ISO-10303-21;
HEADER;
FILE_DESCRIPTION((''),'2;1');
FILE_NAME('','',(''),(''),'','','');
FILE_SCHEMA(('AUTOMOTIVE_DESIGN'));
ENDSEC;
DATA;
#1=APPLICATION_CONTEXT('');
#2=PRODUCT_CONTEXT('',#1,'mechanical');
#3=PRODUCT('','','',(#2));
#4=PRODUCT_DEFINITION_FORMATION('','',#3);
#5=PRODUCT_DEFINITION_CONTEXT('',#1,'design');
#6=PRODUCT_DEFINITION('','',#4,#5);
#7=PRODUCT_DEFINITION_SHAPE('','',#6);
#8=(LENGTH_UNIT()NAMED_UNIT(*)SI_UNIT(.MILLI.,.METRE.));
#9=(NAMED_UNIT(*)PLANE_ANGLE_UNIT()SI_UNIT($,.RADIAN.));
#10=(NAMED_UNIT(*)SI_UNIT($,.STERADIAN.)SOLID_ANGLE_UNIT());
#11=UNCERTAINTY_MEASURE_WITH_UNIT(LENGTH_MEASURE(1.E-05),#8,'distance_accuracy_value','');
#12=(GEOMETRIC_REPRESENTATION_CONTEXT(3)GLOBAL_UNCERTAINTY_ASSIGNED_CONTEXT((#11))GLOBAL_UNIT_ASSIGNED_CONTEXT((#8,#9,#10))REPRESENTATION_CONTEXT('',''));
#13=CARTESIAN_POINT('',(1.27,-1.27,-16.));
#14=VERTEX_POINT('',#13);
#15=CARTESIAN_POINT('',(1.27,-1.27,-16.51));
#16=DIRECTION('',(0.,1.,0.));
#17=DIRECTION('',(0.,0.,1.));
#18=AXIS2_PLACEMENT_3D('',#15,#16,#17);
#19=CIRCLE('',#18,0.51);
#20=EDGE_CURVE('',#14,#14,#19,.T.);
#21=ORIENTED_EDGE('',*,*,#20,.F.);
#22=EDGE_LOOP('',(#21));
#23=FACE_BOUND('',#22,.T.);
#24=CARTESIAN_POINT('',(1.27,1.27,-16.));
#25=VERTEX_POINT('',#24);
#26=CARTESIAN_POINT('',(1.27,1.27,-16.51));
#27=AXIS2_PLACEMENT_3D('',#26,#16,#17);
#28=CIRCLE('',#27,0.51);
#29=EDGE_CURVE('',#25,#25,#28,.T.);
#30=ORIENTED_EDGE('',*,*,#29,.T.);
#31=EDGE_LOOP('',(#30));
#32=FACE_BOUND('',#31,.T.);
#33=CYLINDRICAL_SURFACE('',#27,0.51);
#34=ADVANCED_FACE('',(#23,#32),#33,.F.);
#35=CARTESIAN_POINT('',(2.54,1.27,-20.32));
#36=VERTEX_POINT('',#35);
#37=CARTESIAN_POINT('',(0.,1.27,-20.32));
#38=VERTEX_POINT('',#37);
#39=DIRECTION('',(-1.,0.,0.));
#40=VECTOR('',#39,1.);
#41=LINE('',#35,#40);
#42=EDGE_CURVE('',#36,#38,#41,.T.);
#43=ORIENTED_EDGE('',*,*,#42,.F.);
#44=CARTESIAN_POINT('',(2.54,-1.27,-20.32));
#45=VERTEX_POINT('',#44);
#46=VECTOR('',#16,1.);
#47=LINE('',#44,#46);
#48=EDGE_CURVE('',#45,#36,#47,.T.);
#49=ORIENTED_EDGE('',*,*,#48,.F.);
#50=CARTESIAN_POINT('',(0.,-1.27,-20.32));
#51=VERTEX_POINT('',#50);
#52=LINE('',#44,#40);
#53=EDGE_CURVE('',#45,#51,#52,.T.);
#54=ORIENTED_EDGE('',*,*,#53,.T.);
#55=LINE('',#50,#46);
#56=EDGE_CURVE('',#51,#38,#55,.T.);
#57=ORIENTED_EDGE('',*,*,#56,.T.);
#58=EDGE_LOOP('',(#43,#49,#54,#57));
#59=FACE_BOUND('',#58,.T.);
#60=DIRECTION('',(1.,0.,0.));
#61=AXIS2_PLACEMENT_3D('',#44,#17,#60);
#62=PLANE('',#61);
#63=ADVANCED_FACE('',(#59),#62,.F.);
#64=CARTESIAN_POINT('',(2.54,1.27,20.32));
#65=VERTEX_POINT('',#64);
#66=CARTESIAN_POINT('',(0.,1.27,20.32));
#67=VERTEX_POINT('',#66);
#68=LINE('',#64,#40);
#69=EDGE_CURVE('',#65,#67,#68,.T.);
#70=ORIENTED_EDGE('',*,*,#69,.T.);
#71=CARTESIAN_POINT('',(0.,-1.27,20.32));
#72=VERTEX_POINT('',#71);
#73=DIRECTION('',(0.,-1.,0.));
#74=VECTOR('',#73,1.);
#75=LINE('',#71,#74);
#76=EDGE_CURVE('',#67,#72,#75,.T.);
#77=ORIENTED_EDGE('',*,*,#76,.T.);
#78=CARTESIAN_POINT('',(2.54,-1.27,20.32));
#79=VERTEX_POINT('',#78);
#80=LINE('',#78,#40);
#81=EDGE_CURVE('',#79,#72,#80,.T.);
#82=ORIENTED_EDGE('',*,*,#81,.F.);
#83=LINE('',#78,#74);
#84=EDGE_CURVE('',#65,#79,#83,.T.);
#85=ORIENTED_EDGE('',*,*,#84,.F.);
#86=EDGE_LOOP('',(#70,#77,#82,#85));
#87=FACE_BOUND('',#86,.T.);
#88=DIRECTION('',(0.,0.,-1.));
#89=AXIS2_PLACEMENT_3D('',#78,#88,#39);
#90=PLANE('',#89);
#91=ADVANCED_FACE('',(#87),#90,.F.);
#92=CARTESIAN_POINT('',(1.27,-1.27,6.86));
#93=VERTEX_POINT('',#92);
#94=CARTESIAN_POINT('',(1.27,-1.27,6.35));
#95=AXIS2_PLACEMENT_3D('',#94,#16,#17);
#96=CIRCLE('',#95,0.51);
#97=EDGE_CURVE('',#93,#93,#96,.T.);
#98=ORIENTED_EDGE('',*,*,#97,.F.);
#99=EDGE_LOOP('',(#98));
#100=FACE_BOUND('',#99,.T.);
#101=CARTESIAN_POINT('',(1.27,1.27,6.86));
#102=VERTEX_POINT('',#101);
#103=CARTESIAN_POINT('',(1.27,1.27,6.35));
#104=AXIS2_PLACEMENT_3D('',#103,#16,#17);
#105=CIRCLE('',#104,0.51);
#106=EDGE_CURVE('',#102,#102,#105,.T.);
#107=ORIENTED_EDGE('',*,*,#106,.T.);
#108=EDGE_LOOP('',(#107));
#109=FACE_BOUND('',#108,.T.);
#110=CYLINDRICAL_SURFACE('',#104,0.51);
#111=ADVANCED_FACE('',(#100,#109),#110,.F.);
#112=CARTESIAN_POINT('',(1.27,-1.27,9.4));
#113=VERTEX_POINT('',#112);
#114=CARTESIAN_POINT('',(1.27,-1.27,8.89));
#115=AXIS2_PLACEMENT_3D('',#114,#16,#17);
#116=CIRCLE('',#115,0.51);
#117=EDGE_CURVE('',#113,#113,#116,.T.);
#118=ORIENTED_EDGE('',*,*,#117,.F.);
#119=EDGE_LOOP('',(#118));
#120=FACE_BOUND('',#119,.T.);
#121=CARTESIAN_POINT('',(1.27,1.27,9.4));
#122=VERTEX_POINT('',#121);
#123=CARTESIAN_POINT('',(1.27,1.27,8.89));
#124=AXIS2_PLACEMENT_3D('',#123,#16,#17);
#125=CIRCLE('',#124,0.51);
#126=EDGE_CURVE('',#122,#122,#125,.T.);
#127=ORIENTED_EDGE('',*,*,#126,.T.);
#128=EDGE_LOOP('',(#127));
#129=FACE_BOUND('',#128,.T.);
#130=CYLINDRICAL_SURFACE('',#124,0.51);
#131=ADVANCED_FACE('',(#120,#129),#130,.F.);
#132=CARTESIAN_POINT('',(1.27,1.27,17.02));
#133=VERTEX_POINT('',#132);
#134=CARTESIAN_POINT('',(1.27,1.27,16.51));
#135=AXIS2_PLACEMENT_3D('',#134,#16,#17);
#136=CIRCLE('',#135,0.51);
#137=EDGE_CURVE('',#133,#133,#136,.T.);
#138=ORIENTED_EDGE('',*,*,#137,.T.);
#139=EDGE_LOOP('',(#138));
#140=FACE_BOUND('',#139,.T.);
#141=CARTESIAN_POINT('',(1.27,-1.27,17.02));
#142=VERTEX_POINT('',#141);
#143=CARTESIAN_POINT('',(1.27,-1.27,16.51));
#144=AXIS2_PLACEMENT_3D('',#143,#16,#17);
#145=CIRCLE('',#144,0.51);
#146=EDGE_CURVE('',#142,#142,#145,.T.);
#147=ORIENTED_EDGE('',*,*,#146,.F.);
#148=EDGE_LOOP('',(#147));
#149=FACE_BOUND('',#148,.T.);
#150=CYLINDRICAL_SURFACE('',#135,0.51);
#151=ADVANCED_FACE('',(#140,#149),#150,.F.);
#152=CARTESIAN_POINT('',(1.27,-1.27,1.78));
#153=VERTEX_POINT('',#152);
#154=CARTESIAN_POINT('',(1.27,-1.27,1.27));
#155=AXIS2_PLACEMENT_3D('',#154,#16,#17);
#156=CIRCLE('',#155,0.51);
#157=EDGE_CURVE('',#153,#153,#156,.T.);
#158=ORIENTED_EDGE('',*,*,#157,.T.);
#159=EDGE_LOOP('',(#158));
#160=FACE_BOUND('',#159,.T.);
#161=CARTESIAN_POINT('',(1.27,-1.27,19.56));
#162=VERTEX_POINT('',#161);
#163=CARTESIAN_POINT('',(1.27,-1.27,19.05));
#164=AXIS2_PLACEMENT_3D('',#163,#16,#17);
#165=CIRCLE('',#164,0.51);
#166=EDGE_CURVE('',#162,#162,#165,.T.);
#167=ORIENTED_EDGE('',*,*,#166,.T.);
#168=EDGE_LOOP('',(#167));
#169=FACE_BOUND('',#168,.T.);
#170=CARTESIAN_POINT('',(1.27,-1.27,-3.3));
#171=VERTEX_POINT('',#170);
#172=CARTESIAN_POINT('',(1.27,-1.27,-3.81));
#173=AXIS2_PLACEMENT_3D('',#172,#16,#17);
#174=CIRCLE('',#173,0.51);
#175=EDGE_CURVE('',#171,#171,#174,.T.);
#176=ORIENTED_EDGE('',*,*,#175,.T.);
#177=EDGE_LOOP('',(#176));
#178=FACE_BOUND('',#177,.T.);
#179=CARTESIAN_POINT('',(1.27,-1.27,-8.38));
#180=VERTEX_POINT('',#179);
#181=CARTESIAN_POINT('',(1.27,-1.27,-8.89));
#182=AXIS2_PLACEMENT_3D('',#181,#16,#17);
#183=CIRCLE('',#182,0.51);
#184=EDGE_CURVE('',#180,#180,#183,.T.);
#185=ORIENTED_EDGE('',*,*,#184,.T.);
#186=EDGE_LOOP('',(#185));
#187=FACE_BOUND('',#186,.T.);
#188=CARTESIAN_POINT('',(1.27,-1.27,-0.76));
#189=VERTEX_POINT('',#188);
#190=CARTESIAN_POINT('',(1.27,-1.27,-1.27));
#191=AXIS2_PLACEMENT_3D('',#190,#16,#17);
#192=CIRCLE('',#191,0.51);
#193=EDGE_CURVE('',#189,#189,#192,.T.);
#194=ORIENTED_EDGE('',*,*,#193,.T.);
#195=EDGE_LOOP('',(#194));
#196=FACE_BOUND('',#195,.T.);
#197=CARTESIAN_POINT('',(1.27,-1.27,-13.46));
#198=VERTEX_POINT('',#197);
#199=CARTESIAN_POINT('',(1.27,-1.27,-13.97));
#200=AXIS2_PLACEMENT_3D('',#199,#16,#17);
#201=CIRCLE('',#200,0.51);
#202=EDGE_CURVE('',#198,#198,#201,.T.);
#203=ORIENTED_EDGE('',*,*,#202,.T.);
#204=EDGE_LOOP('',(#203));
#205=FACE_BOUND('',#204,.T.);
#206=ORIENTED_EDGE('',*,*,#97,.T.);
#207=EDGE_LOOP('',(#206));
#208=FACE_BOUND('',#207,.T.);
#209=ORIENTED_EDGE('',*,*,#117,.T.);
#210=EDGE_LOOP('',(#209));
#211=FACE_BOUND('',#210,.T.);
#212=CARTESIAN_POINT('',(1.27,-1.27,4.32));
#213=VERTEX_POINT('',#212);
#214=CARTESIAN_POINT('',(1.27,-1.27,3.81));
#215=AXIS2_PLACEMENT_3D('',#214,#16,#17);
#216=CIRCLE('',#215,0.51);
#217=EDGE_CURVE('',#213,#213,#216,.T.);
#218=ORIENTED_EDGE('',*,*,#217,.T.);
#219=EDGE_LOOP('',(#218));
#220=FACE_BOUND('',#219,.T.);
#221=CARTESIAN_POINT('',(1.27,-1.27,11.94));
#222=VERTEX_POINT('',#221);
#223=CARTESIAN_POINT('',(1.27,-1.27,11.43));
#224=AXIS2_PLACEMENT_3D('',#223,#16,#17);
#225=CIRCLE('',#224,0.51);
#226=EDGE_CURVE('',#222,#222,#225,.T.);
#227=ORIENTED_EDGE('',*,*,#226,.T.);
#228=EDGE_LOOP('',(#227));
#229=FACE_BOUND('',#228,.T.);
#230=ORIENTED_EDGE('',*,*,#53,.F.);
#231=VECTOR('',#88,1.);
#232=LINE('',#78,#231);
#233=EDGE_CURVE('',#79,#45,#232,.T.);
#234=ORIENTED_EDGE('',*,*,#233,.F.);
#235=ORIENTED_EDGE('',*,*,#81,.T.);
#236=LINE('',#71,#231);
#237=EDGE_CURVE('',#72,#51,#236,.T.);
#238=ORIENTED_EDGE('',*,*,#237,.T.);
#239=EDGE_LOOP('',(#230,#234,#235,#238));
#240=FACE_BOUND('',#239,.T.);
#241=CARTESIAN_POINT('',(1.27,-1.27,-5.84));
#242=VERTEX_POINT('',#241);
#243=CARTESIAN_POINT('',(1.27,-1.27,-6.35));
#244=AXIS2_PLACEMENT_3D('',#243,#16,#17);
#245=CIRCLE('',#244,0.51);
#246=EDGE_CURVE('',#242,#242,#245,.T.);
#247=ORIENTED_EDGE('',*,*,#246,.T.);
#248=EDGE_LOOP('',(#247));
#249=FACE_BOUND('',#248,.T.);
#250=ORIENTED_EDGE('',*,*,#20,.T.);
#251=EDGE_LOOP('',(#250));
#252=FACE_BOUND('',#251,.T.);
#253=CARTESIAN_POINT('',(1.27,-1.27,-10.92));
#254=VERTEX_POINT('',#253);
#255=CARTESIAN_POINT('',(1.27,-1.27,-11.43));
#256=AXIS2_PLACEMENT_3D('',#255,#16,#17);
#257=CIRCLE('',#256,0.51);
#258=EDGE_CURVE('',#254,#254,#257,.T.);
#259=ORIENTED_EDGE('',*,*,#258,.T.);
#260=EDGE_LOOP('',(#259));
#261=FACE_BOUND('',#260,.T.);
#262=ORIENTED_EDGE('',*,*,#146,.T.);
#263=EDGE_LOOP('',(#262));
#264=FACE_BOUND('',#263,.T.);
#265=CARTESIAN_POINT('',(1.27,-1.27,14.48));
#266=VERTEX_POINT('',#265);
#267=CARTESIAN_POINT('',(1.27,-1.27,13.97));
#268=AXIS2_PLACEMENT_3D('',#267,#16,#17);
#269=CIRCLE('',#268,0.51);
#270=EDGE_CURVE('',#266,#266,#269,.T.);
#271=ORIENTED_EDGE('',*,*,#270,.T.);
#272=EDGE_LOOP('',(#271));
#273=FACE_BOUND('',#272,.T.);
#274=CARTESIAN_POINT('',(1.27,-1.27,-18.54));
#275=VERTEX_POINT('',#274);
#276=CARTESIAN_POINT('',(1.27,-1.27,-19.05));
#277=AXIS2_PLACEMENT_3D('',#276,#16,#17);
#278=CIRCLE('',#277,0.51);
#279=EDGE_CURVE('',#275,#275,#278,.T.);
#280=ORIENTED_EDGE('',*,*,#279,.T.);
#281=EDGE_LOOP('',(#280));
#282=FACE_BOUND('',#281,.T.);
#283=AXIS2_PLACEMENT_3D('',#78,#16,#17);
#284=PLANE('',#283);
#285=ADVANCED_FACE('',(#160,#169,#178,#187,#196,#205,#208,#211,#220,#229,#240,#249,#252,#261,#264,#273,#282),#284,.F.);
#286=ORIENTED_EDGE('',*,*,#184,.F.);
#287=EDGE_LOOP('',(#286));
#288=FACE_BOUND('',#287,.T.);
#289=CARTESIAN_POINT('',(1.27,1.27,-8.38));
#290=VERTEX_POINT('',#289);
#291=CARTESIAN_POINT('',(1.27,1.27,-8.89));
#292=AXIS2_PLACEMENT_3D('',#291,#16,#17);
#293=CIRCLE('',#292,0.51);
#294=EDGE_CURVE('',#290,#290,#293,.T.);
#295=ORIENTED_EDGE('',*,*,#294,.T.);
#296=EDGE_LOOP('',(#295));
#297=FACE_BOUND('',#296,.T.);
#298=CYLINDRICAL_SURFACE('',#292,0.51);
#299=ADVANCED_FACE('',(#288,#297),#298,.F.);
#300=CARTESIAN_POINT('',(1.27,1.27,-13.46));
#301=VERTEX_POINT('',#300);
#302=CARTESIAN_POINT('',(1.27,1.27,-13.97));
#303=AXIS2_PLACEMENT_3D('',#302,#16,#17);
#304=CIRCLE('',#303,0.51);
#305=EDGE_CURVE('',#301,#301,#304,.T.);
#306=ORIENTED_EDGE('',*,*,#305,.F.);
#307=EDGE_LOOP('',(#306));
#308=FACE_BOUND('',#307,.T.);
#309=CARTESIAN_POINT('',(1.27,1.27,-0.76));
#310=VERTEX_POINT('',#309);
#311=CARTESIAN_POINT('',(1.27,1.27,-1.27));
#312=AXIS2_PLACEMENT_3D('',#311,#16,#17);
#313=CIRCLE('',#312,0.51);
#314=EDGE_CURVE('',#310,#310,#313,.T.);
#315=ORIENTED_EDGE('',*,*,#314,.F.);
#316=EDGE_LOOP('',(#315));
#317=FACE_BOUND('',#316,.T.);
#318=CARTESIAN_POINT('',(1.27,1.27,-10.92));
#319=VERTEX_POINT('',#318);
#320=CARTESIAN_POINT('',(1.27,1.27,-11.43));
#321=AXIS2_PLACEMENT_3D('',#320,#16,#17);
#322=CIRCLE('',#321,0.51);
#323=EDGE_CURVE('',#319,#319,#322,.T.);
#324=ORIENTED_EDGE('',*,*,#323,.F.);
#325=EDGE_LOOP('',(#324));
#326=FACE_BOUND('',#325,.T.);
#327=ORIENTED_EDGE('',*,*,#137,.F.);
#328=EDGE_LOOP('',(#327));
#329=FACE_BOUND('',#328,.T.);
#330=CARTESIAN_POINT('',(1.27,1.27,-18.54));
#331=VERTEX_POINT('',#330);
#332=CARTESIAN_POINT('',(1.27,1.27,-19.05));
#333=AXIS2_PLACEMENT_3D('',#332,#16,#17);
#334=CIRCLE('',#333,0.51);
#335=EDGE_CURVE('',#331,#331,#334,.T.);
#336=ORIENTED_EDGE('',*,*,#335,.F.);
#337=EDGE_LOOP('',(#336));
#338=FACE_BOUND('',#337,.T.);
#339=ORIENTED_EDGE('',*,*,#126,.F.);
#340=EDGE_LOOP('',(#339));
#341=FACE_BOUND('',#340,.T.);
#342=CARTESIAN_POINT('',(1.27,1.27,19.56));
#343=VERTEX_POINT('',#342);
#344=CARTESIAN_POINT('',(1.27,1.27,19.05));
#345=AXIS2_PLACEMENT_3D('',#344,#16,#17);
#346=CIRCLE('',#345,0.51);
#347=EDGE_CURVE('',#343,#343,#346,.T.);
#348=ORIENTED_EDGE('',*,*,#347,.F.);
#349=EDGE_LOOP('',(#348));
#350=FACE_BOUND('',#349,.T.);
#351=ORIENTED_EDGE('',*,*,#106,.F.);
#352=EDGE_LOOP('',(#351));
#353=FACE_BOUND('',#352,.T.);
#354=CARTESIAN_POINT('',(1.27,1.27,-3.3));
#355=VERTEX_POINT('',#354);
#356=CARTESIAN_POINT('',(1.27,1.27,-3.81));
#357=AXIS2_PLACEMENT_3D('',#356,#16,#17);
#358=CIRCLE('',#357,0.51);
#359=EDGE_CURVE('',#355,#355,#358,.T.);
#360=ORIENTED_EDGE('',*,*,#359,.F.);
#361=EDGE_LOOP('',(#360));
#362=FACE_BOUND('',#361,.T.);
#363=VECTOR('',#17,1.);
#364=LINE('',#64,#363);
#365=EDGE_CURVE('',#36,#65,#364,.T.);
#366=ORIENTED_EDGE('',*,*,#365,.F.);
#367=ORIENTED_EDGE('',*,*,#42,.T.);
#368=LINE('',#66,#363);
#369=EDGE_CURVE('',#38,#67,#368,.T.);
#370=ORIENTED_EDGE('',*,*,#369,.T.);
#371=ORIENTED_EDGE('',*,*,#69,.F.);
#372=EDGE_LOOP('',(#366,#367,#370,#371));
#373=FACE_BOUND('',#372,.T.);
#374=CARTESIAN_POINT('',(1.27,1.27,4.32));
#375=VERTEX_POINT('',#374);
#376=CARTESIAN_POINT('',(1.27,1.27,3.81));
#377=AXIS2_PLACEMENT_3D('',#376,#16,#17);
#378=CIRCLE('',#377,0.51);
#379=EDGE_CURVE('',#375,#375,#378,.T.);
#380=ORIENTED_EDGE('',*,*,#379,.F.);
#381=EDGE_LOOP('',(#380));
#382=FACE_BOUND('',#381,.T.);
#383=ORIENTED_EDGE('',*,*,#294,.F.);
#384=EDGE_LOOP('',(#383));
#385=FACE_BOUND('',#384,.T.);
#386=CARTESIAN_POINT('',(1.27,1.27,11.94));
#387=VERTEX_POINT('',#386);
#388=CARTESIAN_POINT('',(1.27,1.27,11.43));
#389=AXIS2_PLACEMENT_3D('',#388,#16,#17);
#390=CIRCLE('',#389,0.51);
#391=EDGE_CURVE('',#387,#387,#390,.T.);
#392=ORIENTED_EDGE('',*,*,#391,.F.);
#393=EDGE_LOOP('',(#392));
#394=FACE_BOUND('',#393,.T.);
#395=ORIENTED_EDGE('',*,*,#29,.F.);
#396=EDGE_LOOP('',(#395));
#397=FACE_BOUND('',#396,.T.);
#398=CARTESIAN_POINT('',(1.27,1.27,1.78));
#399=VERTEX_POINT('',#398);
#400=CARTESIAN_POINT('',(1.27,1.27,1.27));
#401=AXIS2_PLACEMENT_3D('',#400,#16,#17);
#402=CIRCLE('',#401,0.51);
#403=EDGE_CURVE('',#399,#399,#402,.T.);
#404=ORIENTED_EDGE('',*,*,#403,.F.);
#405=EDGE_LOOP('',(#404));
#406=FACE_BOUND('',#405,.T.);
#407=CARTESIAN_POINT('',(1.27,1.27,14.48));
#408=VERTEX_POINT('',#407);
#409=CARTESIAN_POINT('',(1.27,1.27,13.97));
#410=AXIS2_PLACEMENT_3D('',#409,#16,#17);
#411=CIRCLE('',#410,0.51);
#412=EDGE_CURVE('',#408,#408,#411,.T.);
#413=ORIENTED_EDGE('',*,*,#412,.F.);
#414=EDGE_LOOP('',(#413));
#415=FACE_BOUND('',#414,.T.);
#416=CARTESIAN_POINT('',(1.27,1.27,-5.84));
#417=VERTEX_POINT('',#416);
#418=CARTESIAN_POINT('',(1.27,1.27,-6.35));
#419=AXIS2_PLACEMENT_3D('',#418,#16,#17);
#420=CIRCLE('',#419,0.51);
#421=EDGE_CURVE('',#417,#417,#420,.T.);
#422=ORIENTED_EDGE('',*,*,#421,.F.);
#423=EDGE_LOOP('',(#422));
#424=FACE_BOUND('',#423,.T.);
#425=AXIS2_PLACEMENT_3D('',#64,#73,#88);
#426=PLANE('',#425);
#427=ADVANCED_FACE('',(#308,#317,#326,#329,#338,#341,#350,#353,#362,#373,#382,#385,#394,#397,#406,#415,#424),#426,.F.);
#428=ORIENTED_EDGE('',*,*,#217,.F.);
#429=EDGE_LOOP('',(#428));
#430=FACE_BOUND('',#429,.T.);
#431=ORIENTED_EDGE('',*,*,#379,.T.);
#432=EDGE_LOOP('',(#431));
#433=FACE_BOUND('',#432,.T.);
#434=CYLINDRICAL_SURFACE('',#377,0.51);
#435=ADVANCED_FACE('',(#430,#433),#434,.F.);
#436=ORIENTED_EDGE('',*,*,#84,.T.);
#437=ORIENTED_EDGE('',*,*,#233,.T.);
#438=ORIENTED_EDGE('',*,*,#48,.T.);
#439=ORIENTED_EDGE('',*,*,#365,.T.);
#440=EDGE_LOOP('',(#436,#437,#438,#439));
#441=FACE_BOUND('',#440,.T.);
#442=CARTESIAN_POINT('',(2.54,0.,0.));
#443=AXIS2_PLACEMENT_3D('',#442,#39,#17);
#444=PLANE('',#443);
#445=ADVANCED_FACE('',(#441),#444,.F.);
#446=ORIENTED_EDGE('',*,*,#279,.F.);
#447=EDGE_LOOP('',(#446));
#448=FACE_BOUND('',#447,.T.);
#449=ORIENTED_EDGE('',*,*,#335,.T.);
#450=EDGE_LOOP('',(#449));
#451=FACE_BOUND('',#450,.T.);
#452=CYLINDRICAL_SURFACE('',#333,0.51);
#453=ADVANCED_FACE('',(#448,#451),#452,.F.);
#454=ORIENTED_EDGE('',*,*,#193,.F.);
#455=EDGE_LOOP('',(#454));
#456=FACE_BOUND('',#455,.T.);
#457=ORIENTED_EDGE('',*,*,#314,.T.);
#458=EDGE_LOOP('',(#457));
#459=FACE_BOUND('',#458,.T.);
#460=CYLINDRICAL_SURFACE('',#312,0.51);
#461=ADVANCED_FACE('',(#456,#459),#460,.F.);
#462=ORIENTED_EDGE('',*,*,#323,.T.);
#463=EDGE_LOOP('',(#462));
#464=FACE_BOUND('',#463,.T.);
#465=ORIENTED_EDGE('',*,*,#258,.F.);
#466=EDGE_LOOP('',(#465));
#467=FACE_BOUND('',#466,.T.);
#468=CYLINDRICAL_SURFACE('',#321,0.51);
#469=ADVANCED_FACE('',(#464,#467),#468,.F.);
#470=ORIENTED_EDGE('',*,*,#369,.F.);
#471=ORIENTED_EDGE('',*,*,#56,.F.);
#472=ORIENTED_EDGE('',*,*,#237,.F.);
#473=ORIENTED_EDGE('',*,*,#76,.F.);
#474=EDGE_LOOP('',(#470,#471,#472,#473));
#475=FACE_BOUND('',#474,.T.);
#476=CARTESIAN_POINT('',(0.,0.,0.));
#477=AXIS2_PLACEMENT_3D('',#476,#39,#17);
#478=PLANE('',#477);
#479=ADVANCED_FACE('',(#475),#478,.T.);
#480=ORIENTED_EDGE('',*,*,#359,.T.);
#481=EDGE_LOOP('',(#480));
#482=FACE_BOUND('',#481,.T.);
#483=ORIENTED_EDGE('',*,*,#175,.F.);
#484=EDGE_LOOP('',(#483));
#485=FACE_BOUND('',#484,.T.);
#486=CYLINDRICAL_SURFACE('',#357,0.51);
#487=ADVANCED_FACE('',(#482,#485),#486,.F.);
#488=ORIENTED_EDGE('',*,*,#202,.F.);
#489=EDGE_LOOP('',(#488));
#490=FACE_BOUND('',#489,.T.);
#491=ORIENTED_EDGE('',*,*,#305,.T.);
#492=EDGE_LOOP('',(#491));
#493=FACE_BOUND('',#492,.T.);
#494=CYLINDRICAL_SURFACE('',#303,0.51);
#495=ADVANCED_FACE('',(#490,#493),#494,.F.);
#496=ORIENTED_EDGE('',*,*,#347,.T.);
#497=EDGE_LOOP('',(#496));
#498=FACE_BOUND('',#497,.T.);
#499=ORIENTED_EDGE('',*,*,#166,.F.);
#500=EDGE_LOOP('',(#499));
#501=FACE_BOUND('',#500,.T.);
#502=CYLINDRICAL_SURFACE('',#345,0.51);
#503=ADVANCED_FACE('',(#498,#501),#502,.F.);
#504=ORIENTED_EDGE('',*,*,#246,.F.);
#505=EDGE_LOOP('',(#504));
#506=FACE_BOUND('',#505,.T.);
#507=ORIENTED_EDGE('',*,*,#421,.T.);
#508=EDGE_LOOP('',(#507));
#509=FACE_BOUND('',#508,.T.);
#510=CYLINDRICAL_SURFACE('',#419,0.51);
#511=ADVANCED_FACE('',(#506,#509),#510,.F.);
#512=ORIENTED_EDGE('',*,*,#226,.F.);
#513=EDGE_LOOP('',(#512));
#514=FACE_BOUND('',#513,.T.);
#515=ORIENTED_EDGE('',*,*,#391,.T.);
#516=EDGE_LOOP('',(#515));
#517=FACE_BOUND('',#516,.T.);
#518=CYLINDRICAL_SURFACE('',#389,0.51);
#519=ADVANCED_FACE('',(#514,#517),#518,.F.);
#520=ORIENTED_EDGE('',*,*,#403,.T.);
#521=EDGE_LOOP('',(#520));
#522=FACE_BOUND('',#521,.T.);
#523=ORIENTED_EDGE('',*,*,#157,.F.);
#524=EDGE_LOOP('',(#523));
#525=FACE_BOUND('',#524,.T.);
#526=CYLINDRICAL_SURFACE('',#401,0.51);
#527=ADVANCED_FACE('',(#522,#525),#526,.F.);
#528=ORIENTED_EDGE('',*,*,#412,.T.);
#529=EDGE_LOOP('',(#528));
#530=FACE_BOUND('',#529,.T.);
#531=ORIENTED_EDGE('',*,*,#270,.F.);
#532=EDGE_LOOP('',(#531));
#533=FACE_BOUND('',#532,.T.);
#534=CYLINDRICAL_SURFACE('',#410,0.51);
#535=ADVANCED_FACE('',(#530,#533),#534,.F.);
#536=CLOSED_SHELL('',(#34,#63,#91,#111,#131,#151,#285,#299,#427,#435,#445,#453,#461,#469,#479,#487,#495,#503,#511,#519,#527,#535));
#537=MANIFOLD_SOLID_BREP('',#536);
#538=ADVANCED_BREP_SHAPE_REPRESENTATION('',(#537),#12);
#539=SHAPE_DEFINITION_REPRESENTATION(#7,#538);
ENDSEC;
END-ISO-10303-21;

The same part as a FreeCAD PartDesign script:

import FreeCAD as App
import Part
import Sketcher

V = App.Vector
Q = App.Units.Quantity

doc = App.newDocument("Part")
body = doc.addObject("PartDesign::Body", "Body")

sketch1 = body.newObject("Sketcher::SketchObject", "Sketch")
sketch1.AttachmentSupport = (doc.getObject("YZ_Plane"), [""])
sketch1.MapMode = "FlatFace"
sketch1.addGeometry([
    Part.LineSegment(V(1.27, 20.32, 0), V(-1.27, 20.32, 0)),
    Part.LineSegment(V(-1.27, 20.32, 0), V(-1.27, -20.32, 0)),
    Part.LineSegment(V(-1.27, -20.32, 0), V(1.27, -20.32, 0)),
    Part.LineSegment(V(1.27, -20.32, 0), V(1.27, 20.32, 0)),
], False)
sketch1.addConstraint([
    Sketcher.Constraint("Coincident", 0, 2, 1, 1),
    Sketcher.Constraint("Coincident", 1, 2, 2, 1),
    Sketcher.Constraint("Coincident", 2, 2, 3, 1),
    Sketcher.Constraint("Coincident", 3, 2, 0, 1),
    Sketcher.Constraint("Horizontal", 0),
    Sketcher.Constraint("Vertical", 1),
    Sketcher.Constraint("Horizontal", 2),
    Sketcher.Constraint("Vertical", 3),
    Sketcher.Constraint("Symmetric", 0, 2, 2, 2, -1, 1),
    Sketcher.Constraint("DistanceX", 0, 2, 0, 1, Q("0.1 in")),
    Sketcher.Constraint("DistanceY", 1, 2, 1, 1, Q("1.6 in")),
])
pad1 = body.newObject("PartDesign::Pad", "Pad")
pad1.Profile = sketch1
pad1.Length = Q("0.1 in")

sketch2 = body.newObject("Sketcher::SketchObject", "Sketch001")
sketch2.AttachmentSupport = (doc.getObject("XZ_Plane"), [""])
sketch2.MapMode = "FlatFace"
sketch2.AttachmentOffset = App.Placement(V(0, 0, -0.05 * 25.4), App.Rotation())
sketch2.addGeometry(Part.Circle(V(1.27, 19.05, 0), V(0, 0, 1), 0.51), False)
sketch2.addConstraint([
    Sketcher.Constraint("Diameter", 0, 1.02),
    Sketcher.Constraint("DistanceX", -1, 1, 0, 3, Q("0.05 in")),
    Sketcher.Constraint("DistanceY", -1, 1, 0, 3, Q("0.75 in")),
])
doc.recompute()
hole = body.newObject("PartDesign::Hole", "Hole")
hole.Profile = sketch2
hole.ThreadType = "None"
hole.Diameter = 1.02
hole.DepthType = "ThroughAll"
hole.Reversed = True
doc.recompute()

linearpattern = body.newObject("PartDesign::LinearPattern", "LinearPattern")
linearpattern.Originals = [hole]
linearpattern.Direction = (doc.getObject("Z_Axis"), [""])
linearpattern.Mode = "offset"
linearpattern.Offset = Q("0.1 in")
linearpattern.Occurrences = 16
linearpattern.Reversed = True
body.Tip = linearpattern

doc.recompute()
